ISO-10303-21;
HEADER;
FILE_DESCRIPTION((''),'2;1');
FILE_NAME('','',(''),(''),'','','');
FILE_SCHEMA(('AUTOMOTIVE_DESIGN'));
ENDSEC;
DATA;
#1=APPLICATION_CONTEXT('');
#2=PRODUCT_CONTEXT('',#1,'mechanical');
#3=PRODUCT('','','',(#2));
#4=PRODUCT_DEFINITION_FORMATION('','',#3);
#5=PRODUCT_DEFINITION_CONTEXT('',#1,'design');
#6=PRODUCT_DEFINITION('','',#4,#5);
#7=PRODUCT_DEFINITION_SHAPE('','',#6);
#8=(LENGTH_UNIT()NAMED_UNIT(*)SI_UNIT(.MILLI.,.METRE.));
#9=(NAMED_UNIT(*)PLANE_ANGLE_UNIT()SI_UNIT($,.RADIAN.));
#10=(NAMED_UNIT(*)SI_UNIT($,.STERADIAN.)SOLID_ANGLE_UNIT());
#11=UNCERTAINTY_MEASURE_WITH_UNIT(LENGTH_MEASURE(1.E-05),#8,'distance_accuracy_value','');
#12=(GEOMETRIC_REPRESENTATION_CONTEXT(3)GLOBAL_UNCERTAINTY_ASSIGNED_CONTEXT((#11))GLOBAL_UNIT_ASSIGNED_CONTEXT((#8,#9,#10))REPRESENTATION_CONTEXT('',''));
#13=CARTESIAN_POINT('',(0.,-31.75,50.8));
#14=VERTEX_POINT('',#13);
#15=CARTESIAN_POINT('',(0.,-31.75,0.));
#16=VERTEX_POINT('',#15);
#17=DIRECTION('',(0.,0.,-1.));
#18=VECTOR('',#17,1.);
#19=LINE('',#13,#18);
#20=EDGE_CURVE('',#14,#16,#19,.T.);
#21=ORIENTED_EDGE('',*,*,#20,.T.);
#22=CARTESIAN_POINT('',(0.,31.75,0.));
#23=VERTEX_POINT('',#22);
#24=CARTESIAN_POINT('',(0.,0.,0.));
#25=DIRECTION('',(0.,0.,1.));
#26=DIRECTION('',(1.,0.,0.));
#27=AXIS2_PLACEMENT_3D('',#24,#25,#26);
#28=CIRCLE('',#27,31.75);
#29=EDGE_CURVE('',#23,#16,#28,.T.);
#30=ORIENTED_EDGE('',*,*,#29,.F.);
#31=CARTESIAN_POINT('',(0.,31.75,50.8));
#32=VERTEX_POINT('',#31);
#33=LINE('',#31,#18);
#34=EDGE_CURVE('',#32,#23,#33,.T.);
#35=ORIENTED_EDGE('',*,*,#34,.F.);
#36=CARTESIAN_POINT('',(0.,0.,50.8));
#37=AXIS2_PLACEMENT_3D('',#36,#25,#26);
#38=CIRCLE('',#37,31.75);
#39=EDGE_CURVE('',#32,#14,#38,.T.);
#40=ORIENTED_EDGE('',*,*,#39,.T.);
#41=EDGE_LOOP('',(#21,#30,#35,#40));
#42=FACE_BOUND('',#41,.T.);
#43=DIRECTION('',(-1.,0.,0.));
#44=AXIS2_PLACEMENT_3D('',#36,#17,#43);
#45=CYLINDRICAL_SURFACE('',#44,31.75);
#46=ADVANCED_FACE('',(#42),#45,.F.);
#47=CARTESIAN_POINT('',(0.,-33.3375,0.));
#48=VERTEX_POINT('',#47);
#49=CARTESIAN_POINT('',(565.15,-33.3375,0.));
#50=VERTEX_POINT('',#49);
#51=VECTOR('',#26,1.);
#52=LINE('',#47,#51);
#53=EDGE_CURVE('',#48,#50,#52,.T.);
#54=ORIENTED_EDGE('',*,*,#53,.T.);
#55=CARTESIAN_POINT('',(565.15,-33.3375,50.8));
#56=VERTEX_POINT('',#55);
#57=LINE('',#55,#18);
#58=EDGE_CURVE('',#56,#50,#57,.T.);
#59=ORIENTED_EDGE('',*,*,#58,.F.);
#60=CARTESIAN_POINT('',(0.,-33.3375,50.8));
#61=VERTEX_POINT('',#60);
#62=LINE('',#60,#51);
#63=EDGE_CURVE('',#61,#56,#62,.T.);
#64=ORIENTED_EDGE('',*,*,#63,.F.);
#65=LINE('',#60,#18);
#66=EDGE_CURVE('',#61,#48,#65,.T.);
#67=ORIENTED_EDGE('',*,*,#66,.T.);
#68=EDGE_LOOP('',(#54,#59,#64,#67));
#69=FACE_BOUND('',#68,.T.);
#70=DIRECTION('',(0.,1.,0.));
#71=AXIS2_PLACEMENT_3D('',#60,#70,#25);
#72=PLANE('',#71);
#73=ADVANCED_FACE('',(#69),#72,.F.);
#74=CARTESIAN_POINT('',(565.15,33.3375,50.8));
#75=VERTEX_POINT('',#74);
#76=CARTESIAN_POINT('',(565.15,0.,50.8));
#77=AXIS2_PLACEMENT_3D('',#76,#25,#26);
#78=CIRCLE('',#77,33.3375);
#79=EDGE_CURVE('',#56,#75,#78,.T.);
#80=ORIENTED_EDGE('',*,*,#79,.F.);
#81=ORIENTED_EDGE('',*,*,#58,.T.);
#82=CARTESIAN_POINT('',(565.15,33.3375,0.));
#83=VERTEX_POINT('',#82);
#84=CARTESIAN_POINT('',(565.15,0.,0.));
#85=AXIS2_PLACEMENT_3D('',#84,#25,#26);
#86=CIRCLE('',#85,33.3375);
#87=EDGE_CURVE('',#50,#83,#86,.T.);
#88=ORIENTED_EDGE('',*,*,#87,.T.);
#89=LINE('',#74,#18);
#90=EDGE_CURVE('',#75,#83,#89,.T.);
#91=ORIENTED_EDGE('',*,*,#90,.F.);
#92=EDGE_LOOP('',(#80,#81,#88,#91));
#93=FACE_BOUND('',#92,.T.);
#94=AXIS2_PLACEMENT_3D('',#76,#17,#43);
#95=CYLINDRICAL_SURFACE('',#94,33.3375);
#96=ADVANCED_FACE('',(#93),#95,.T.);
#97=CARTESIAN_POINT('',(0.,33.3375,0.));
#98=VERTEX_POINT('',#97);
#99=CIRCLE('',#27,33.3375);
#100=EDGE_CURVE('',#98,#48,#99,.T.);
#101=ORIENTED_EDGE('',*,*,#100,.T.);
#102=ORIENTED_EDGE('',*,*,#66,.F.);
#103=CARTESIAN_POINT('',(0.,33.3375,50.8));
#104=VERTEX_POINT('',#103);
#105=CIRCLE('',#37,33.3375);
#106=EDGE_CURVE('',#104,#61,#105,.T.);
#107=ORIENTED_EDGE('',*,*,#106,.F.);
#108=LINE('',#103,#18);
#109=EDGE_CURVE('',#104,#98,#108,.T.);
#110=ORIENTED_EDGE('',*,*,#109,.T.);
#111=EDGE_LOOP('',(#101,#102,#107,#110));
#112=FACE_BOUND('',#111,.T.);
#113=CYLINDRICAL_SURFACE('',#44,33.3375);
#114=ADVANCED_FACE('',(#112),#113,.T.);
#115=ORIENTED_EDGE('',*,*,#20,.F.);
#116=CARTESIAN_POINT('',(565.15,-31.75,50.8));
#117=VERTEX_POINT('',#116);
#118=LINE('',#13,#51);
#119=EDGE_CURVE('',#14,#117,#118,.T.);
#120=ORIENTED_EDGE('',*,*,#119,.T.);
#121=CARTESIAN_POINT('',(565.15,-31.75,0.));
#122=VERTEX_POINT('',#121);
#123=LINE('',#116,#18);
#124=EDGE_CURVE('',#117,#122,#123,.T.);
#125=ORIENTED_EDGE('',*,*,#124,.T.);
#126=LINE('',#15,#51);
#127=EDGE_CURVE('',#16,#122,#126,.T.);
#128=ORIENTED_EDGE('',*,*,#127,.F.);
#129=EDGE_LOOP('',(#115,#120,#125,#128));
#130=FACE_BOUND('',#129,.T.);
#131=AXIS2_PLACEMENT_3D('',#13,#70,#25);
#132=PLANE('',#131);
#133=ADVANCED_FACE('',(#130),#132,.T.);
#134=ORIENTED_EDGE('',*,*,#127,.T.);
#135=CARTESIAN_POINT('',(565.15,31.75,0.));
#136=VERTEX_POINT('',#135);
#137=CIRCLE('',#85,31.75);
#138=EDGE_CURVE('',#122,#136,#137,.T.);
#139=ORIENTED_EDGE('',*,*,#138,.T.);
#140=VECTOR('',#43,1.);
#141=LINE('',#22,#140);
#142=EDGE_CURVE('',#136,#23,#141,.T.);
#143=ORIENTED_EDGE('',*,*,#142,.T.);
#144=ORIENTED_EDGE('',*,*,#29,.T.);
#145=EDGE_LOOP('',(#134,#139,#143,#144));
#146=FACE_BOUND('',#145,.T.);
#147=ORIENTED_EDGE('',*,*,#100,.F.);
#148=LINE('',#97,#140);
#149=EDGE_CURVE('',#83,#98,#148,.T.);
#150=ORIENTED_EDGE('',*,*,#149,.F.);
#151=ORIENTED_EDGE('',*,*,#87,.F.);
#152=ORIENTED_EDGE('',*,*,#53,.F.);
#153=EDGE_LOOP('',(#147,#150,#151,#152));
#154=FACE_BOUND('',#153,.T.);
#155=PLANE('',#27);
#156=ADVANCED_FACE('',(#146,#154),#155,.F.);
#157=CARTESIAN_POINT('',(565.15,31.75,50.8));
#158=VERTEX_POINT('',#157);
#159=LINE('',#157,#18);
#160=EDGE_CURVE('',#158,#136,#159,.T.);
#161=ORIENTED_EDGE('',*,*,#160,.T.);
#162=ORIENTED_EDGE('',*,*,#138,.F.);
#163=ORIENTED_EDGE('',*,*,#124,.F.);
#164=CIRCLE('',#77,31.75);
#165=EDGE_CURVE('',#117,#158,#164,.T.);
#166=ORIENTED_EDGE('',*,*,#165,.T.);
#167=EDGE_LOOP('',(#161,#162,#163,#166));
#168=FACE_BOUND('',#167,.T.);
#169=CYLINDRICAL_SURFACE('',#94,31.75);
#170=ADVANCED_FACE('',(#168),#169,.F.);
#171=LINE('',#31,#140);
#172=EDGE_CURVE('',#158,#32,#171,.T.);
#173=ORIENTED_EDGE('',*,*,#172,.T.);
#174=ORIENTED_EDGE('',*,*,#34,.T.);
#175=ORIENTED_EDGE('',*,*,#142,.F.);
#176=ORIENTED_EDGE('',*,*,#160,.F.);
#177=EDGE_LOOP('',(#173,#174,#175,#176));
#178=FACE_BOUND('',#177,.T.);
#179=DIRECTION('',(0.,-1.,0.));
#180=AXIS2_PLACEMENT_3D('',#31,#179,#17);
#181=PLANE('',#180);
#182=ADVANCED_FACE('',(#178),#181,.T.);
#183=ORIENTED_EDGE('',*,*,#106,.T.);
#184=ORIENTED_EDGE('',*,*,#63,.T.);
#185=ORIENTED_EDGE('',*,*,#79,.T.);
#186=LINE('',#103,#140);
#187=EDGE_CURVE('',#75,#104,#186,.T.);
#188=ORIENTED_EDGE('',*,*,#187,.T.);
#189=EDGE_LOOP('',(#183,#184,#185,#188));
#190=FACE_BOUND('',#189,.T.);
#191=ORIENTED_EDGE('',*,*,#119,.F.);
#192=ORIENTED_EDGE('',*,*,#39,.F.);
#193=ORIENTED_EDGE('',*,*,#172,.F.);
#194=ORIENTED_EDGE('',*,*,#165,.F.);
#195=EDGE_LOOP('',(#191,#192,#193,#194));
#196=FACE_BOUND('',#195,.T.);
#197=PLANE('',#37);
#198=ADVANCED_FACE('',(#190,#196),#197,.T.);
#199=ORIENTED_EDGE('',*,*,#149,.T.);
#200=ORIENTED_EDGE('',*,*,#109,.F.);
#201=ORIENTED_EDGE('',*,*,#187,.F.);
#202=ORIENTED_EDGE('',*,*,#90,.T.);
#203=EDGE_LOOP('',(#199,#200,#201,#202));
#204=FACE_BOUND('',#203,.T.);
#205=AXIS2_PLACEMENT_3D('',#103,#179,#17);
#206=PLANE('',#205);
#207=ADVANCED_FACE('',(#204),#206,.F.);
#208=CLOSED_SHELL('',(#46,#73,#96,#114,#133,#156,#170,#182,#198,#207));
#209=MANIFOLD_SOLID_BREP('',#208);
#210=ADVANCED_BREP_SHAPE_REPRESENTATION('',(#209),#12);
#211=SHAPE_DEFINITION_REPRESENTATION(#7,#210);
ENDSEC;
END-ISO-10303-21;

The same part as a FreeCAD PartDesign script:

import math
import FreeCAD as App
import Part
import Sketcher
from FreeCAD import Vector
Q = App.Units.Quantity

doc = App.newDocument("Part")
body = doc.addObject("PartDesign::Body", "Body")

# Sketch on XY plane
sketch1 = body.newObject("Sketcher::SketchObject", "Sketch")
sketch1.AttachmentSupport = (doc.getObject("XY_Plane"), [""])
sketch1.MapMode = "FlatFace"
sketch1.addGeometry([
    Part.LineSegment(Vector(565, 33, 0), Vector(0, 33, 0)),  # 0
    Part.ArcOfCircle(Part.Circle(Vector(0, 0, 0), Vector(0, 0, 1), 33), math.radians(90), math.radians(270)),  # 1
    Part.LineSegment(Vector(0, -33, 0), Vector(565, -33, 0)),  # 2
    Part.ArcOfCircle(Part.Circle(Vector(565, 0, 0), Vector(0, 0, 1), 33), math.radians(-90), math.radians(90)),  # 3
    Part.LineSegment(Vector(0, 32, 0), Vector(565, 32, 0)),  # 4
    Part.ArcOfCircle(Part.Circle(Vector(565, 0, 0), Vector(0, 0, 1), 32), math.radians(-90), math.radians(90)),  # 5
    Part.LineSegment(Vector(565, -32, 0), Vector(0, -32, 0)),  # 6
    Part.ArcOfCircle(Part.Circle(Vector(0, 0, 0), Vector(0, 0, 1), 32), math.radians(90), math.radians(270)),  # 7
], False)
sketch1.addConstraint([
    Sketcher.Constraint("Tangent", 0, 2, 1, 1),
    Sketcher.Constraint("Tangent", 1, 2, 2, 1),
    Sketcher.Constraint("Tangent", 2, 2, 3, 1),
    Sketcher.Constraint("Tangent", 3, 2, 0, 1),
    Sketcher.Constraint("Tangent", 4, 2, 5, 2),
    Sketcher.Constraint("Tangent", 5, 1, 6, 1),
    Sketcher.Constraint("Tangent", 6, 2, 7, 2),
    Sketcher.Constraint("Tangent", 7, 1, 4, 1),
    Sketcher.Constraint("Horizontal", 0),
    Sketcher.Constraint("Horizontal", 2),
    Sketcher.Constraint("Horizontal", 4),
    Sketcher.Constraint("Horizontal", 6),
    Sketcher.Constraint("Coincident", 1, 3, -1, 1),
    Sketcher.Constraint("Coincident", 7, 3, -1, 1),
    Sketcher.Constraint("Vertical", 5, 3, 2, 2),
    Sketcher.Constraint("Radius", 5, Q("1.25 in")),
    Sketcher.Constraint("Radius", 1, Q("1.3125 in")),
    Sketcher.Constraint("DistanceX", 0, 2, 0, 1, Q("22.25 in")),
])
pad1 = body.newObject("PartDesign::Pad", "Pad")
pad1.Profile = sketch1
pad1.Length = Q("2 in")

doc.recompute()
